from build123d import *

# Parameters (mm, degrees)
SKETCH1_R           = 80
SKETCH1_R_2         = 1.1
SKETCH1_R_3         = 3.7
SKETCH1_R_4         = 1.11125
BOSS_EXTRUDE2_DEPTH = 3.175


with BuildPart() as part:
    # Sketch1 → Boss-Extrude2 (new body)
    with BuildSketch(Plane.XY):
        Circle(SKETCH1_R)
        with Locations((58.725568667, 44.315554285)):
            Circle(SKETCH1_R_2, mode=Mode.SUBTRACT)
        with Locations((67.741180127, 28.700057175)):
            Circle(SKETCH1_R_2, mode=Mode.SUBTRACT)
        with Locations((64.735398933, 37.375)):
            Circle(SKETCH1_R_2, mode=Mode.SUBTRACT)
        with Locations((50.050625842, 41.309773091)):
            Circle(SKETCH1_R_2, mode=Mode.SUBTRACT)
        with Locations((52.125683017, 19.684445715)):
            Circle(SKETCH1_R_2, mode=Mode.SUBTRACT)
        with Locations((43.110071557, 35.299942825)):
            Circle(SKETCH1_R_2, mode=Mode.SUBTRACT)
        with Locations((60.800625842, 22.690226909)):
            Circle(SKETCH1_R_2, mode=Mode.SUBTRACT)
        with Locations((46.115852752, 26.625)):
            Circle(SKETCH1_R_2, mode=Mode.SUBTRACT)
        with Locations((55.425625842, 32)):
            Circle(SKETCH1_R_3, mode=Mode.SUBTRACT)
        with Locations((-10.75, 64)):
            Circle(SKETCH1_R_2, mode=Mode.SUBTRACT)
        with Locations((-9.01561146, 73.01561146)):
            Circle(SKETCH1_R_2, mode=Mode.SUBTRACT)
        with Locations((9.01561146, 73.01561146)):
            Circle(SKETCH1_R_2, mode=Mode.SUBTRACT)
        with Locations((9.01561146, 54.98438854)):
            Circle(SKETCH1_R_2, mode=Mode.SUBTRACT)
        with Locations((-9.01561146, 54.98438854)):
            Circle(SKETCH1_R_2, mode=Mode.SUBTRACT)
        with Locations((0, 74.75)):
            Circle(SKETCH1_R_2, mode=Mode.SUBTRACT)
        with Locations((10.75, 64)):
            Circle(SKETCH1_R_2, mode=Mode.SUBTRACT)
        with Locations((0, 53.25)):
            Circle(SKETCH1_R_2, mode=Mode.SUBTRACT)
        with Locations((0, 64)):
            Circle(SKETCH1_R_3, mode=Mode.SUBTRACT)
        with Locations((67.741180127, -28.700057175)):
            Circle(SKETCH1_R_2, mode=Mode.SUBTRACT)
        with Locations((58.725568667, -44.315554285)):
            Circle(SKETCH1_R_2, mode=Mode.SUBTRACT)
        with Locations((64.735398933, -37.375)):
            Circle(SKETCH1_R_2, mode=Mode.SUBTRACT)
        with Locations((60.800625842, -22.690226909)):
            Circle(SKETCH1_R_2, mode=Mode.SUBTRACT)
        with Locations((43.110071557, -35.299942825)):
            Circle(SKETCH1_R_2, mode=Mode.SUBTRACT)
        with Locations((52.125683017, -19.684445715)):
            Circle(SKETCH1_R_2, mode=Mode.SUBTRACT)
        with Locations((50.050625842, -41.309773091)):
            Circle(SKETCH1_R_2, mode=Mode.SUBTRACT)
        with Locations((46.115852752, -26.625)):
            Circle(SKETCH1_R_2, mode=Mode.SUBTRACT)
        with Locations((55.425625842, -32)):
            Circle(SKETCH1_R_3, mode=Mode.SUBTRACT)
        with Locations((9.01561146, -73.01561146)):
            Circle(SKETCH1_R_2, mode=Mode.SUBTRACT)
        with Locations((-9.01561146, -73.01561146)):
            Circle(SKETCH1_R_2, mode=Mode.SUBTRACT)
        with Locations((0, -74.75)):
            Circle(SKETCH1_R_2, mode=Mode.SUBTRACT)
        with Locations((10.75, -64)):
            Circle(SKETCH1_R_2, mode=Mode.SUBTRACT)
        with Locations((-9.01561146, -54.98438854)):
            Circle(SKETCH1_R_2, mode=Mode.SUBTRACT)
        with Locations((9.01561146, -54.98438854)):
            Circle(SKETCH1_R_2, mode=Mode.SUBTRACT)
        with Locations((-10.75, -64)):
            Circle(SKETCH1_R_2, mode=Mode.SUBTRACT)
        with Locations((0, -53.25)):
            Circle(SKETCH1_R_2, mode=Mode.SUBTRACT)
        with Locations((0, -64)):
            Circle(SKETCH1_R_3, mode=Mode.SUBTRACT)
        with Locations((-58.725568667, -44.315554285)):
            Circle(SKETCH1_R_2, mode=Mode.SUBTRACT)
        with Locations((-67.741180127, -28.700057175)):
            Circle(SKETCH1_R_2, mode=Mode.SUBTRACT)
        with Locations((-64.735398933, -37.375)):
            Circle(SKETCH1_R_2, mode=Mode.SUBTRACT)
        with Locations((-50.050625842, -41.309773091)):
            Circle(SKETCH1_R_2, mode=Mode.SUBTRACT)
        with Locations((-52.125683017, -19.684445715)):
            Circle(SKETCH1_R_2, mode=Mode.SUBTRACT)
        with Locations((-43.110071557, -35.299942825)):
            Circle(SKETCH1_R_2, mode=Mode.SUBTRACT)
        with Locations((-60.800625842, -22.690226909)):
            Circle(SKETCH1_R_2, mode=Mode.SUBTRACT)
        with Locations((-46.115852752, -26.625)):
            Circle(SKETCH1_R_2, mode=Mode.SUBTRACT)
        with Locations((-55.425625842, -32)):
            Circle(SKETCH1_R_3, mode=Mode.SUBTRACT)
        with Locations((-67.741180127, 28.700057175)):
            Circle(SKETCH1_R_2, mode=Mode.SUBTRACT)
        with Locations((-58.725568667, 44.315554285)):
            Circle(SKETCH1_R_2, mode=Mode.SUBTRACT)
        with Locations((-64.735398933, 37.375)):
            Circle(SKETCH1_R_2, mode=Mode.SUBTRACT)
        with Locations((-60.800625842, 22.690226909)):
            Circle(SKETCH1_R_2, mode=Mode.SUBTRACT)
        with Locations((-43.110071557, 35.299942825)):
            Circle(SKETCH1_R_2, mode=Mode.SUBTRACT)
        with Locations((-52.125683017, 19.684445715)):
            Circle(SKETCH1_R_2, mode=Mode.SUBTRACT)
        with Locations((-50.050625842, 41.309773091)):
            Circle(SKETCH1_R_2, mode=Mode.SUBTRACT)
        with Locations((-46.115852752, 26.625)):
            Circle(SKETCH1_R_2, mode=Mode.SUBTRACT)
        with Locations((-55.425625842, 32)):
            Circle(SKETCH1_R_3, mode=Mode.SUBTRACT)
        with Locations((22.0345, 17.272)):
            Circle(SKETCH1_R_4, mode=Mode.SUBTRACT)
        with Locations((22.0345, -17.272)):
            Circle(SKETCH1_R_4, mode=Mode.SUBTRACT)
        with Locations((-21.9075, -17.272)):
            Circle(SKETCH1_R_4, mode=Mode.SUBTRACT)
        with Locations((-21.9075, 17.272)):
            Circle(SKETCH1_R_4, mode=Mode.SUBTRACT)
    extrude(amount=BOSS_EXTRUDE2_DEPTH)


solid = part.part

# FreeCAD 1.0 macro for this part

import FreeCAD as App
import Part
import Sketcher
from FreeCAD import Vector

doc = App.newDocument("Part")
body = doc.addObject("PartDesign::Body", "Body")

# Sketch on XY plane
sketch1 = body.newObject("Sketcher::SketchObject", "Sketch")
sketch1.AttachmentSupport = (doc.getObject("XY_Plane"), [""])
sketch1.MapMode = "FlatFace"
sketch1.addGeometry(Part.Circle(Vector(0, 0, 0), Vector(0, 0, 1), 80), False)
sketch1.addGeometry(Part.Circle(Vector(-58.7, -44.3, 0), Vector(0, 0, 1), 1.1), False)
sketch1.addGeometry(Part.Circle(Vector(-50.1, -41.3, 0), Vector(0, 0, 1), 1.1), False)
sketch1.addGeometry(Part.Circle(Vector(-9, -73, 0), Vector(0, 0, 1), 1.1), False)
sketch1.addGeometry(Part.Circle(Vector(-10.8, -64, 0), Vector(0, 0, 1), 1.1), False)
sketch1.addGeometry(Part.Circle(Vector(-9, -55, 0), Vector(0, 0, 1), 1.1), False)
sketch1.addGeometry(Part.Circle(Vector(-64.7, -37.4, 0), Vector(0, 0, 1), 1.1), False)
sketch1.addGeometry(Part.Circle(Vector(-67.7, -28.7, 0), Vector(0, 0, 1), 1.1), False)
sketch1.addGeometry(Part.Circle(Vector(-55.4, -32, 0), Vector(0, 0, 1), 3.7), False)
sketch1.addGeometry(Part.Circle(Vector(-60.8, -22.7, 0), Vector(0, 0, 1), 1.1), False)
sketch1.addGeometry(Part.Circle(Vector(-52.1, -19.7, 0), Vector(0, 0, 1), 1.1), False)
sketch1.addGeometry(Part.Circle(Vector(-43.1, -35.3, 0), Vector(0, 0, 1), 1.1), False)
sketch1.addGeometry(Part.Circle(Vector(-46.1, -26.6, 0), Vector(0, 0, 1), 1.1), False)
sketch1.addGeometry(Part.Circle(Vector(-21.9, -17.3, 0), Vector(0, 0, 1), 1.1), False)
sketch1.addGeometry(Part.Circle(Vector(0, -74.8, 0), Vector(0, 0, 1), 1.1), False)
sketch1.addGeometry(Part.Circle(Vector(9, -73, 0), Vector(0, 0, 1), 1.1), False)
sketch1.addGeometry(Part.Circle(Vector(0, -64, 0), Vector(0, 0, 1), 3.7), False)
sketch1.addGeometry(Part.Circle(Vector(10.8, -64, 0), Vector(0, 0, 1), 1.1), False)
sketch1.addGeometry(Part.Circle(Vector(0, -53.2, 0), Vector(0, 0, 1), 1.1), False)
sketch1.addGeometry(Part.Circle(Vector(9, -55, 0), Vector(0, 0, 1), 1.1), False)
sketch1.addGeometry(Part.Circle(Vector(50.1, -41.3, 0), Vector(0, 0, 1), 1.1), False)
sketch1.addGeometry(Part.Circle(Vector(58.7, -44.3, 0), Vector(0, 0, 1), 1.1), False)
sketch1.addGeometry(Part.Circle(Vector(22, -17.3, 0), Vector(0, 0, 1), 1.1), False)
sketch1.addGeometry(Part.Circle(Vector(43.1, -35.3, 0), Vector(0, 0, 1), 1.1), False)
sketch1.addGeometry(Part.Circle(Vector(46.1, -26.6, 0), Vector(0, 0, 1), 1.1), False)
sketch1.addGeometry(Part.Circle(Vector(55.4, -32, 0), Vector(0, 0, 1), 3.7), False)
sketch1.addGeometry(Part.Circle(Vector(64.7, -37.4, 0), Vector(0, 0, 1), 1.1), False)
sketch1.addGeometry(Part.Circle(Vector(67.7, -28.7, 0), Vector(0, 0, 1), 1.1), False)
sketch1.addGeometry(Part.Circle(Vector(52.1, -19.7, 0), Vector(0, 0, 1), 1.1), False)
sketch1.addGeometry(Part.Circle(Vector(60.8, -22.7, 0), Vector(0, 0, 1), 1.1), False)
sketch1.addGeometry(Part.Circle(Vector(-60.8, 22.7, 0), Vector(0, 0, 1), 1.1), False)
sketch1.addGeometry(Part.Circle(Vector(-52.1, 19.7, 0), Vector(0, 0, 1), 1.1), False)
sketch1.addGeometry(Part.Circle(Vector(-67.7, 28.7, 0), Vector(0, 0, 1), 1.1), False)
sketch1.addGeometry(Part.Circle(Vector(-64.7, 37.4, 0), Vector(0, 0, 1), 1.1), False)
sketch1.addGeometry(Part.Circle(Vector(-55.4, 32, 0), Vector(0, 0, 1), 3.7), False)
sketch1.addGeometry(Part.Circle(Vector(-46.1, 26.6, 0), Vector(0, 0, 1), 1.1), False)
sketch1.addGeometry(Part.Circle(Vector(-43.1, 35.3, 0), Vector(0, 0, 1), 1.1), False)
sketch1.addGeometry(Part.Circle(Vector(-21.9, 17.3, 0), Vector(0, 0, 1), 1.1), False)
sketch1.addGeometry(Part.Circle(Vector(-58.7, 44.3, 0), Vector(0, 0, 1), 1.1), False)
sketch1.addGeometry(Part.Circle(Vector(-50.1, 41.3, 0), Vector(0, 0, 1), 1.1), False)
sketch1.addGeometry(Part.Circle(Vector(-9, 55, 0), Vector(0, 0, 1), 1.1), False)
sketch1.addGeometry(Part.Circle(Vector(-10.8, 64, 0), Vector(0, 0, 1), 1.1), False)
sketch1.addGeometry(Part.Circle(Vector(-9, 73, 0), Vector(0, 0, 1), 1.1), False)
sketch1.addGeometry(Part.Circle(Vector(22, 17.3, 0), Vector(0, 0, 1), 1.1), False)
sketch1.addGeometry(Part.Circle(Vector(46.1, 26.6, 0), Vector(0, 0, 1), 1.1), False)
sketch1.addGeometry(Part.Circle(Vector(43.1, 35.3, 0), Vector(0, 0, 1), 1.1), False)
sketch1.addGeometry(Part.Circle(Vector(52.1, 19.7, 0), Vector(0, 0, 1), 1.1), False)
sketch1.addGeometry(Part.Circle(Vector(60.8, 22.7, 0), Vector(0, 0, 1), 1.1), False)
sketch1.addGeometry(Part.Circle(Vector(55.4, 32, 0), Vector(0, 0, 1), 3.7), False)
sketch1.addGeometry(Part.Circle(Vector(67.7, 28.7, 0), Vector(0, 0, 1), 1.1), False)
sketch1.addGeometry(Part.Circle(Vector(64.7, 37.4, 0), Vector(0, 0, 1), 1.1), False)
sketch1.addGeometry(Part.Circle(Vector(0, 53.2, 0), Vector(0, 0, 1), 1.1), False)
sketch1.addGeometry(Part.Circle(Vector(9, 55, 0), Vector(0, 0, 1), 1.1), False)
sketch1.addGeometry(Part.Circle(Vector(0, 64, 0), Vector(0, 0, 1), 3.7), False)
sketch1.addGeometry(Part.Circle(Vector(10.8, 64, 0), Vector(0, 0, 1), 1.1), False)
sketch1.addGeometry(Part.Circle(Vector(0, 74.8, 0), Vector(0, 0, 1), 1.1), False)
sketch1.addGeometry(Part.Circle(Vector(9, 73, 0), Vector(0, 0, 1), 1.1), False)
sketch1.addGeometry(Part.Circle(Vector(50.1, 41.3, 0), Vector(0, 0, 1), 1.1), False)
sketch1.addGeometry(Part.Circle(Vector(58.7, 44.3, 0), Vector(0, 0, 1), 1.1), False)
sketch1.addConstraint(Sketcher.Constraint("Coincident", 0, 3, -1, 1))
sketch1.addConstraint(Sketcher.Constraint("Equal", 1, 2))
sketch1.addConstraint(Sketcher.Constraint("Equal", 2, 3))
sketch1.addConstraint(Sketcher.Constraint("Equal", 3, 4))
sketch1.addConstraint(Sketcher.Constraint("Equal", 4, 5))
sketch1.addConstraint(Sketcher.Constraint("Equal", 5, 6))
sketch1.addConstraint(Sketcher.Constraint("Equal", 6, 7))
sketch1.addConstraint(Sketcher.Constraint("Equal", 7, 9))
sketch1.addConstraint(Sketcher.Constraint("Equal", 9, 10))
sketch1.addConstraint(Sketcher.Constraint("Equal", 10, 11))
sketch1.addConstraint(Sketcher.Constraint("Equal", 11, 12))
sketch1.addConstraint(Sketcher.Constraint("Equal", 12, 14))
sketch1.addConstraint(Sketcher.Constraint("Equal", 14, 15))
sketch1.addConstraint(Sketcher.Constraint("Equal", 8, 16))
sketch1.addConstraint(Sketcher.Constraint("Equal", 15, 17))
sketch1.addConstraint(Sketcher.Constraint("Equal", 17, 18))
sketch1.addConstraint(Sketcher.Constraint("Equal", 18, 19))
sketch1.addConstraint(Sketcher.Constraint("Equal", 19, 20))
sketch1.addConstraint(Sketcher.Constraint("Equal", 20, 21))
sketch1.addConstraint(Sketcher.Constraint("Equal", 13, 22))
sketch1.addConstraint(Sketcher.Constraint("Equal", 21, 23))
sketch1.addConstraint(Sketcher.Constraint("Equal", 23, 24))
sketch1.addConstraint(Sketcher.Constraint("Equal", 16, 25))
sketch1.addConstraint(Sketcher.Constraint("Equal", 24, 26))
sketch1.addConstraint(Sketcher.Constraint("Equal", 26, 27))
sketch1.addConstraint(Sketcher.Constraint("Equal", 27, 28))
sketch1.addConstraint(Sketcher.Constraint("Equal", 28, 29))
sketch1.addConstraint(Sketcher.Constraint("Equal", 29, 30))
sketch1.addConstraint(Sketcher.Constraint("Equal", 30, 31))
sketch1.addConstraint(Sketcher.Constraint("Equal", 31, 32))
sketch1.addConstraint(Sketcher.Constraint("Equal", 32, 33))
sketch1.addConstraint(Sketcher.Constraint("Equal", 25, 34))
sketch1.addConstraint(Sketcher.Constraint("Equal", 33, 35))
sketch1.addConstraint(Sketcher.Constraint("Equal", 35, 36))
sketch1.addConstraint(Sketcher.Constraint("Equal", 22, 37))
sketch1.addConstraint(Sketcher.Constraint("Equal", 36, 38))
sketch1.addConstraint(Sketcher.Constraint("Equal", 38, 39))
sketch1.addConstraint(Sketcher.Constraint("Equal", 39, 40))
sketch1.addConstraint(Sketcher.Constraint("Equal", 40, 41))
sketch1.addConstraint(Sketcher.Constraint("Equal", 41, 42))
sketch1.addConstraint(Sketcher.Constraint("Equal", 37, 43))
sketch1.addConstraint(Sketcher.Constraint("Equal", 42, 44))
sketch1.addConstraint(Sketcher.Constraint("Equal", 44, 45))
sketch1.addConstraint(Sketcher.Constraint("Equal", 45, 46))
sketch1.addConstraint(Sketcher.Constraint("Equal", 46, 47))
sketch1.addConstraint(Sketcher.Constraint("Equal", 34, 48))
sketch1.addConstraint(Sketcher.Constraint("Equal", 47, 49))
sketch1.addConstraint(Sketcher.Constraint("Equal", 49, 50))
sketch1.addConstraint(Sketcher.Constraint("Equal", 50, 51))
sketch1.addConstraint(Sketcher.Constraint("Equal", 51, 52))
sketch1.addConstraint(Sketcher.Constraint("Equal", 48, 53))
sketch1.addConstraint(Sketcher.Constraint("Equal", 52, 54))
sketch1.addConstraint(Sketcher.Constraint("Equal", 54, 55))
sketch1.addConstraint(Sketcher.Constraint("Equal", 55, 56))
sketch1.addConstraint(Sketcher.Constraint("Equal", 56, 57))
sketch1.addConstraint(Sketcher.Constraint("Equal", 57, 58))
sketch1.addConstraint(Sketcher.Constraint("Symmetric", 29, 3, 30, 3, -1, 1))
sketch1.addConstraint(Sketcher.Constraint("Symmetric", 28, 3, 31, 3, -1, 1))
sketch1.addConstraint(Sketcher.Constraint("Symmetric", 27, 3, 32, 3, -1, 1))
sketch1.addConstraint(Sketcher.Constraint("Symmetric", 26, 3, 33, 3, -1, 1))
sketch1.addConstraint(Sketcher.Constraint("Symmetric", 25, 3, 34, 3, -1, 1))
sketch1.addConstraint(Sketcher.Constraint("Symmetric", 24, 3, 35, 3, -1, 1))
sketch1.addConstraint(Sketcher.Constraint("Symmetric", 23, 3, 36, 3, -1, 1))
sketch1.addConstraint(Sketcher.Constraint("Symmetric", 21, 3, 38, 3, -1, 1))
sketch1.addConstraint(Sketcher.Constraint("Symmetric", 20, 3, 39, 3, -1, 1))
sketch1.addConstraint(Sketcher.Constraint("Symmetric", 19, 3, 40, 3, -1, 1))
sketch1.addConstraint(Sketcher.Constraint("Symmetric", 17, 3, 41, 3, -1, 1))
sketch1.addConstraint(Sketcher.Constraint("Symmetric", 15, 3, 42, 3, -1, 1))
sketch1.addConstraint(Sketcher.Constraint("Symmetric", 12, 3, 44, 3, -1, 1))
sketch1.addConstraint(Sketcher.Constraint("Symmetric", 11, 3, 45, 3, -1, 1))
sketch1.addConstraint(Sketcher.Constraint("Symmetric", 10, 3, 46, 3, -1, 1))
sketch1.addConstraint(Sketcher.Constraint("Symmetric", 9, 3, 47, 3, -1, 1))
sketch1.addConstraint(Sketcher.Constraint("Symmetric", 8, 3, 48, 3, -1, 1))
sketch1.addConstraint(Sketcher.Constraint("Symmetric", 7, 3, 49, 3, -1, 1))
sketch1.addConstraint(Sketcher.Constraint("Symmetric", 6, 3, 50, 3, -1, 1))
sketch1.addConstraint(Sketcher.Constraint("Symmetric", 18, 3, 51, 3, -1, 1))
sketch1.addConstraint(Sketcher.Constraint("Symmetric", 5, 3, 52, 3, -1, 1))
sketch1.addConstraint(Sketcher.Constraint("Symmetric", 16, 3, 53, 3, -1, 1))
sketch1.addConstraint(Sketcher.Constraint("Symmetric", 4, 3, 54, 3, -1, 1))
sketch1.addConstraint(Sketcher.Constraint("Symmetric", 14, 3, 55, 3, -1, 1))
sketch1.addConstraint(Sketcher.Constraint("Symmetric", 3, 3, 56, 3, -1, 1))
sketch1.addConstraint(Sketcher.Constraint("Symmetric", 2, 3, 57, 3, -1, 1))
sketch1.addConstraint(Sketcher.Constraint("Symmetric", 1, 3, 58, 3, -1, 1))
sketch1.addConstraint(Sketcher.Constraint("Symmetric", 3, 3, 15, 3, -2))
sketch1.addConstraint(Sketcher.Constraint("Symmetric", 4, 3, 17, 3, -2))
sketch1.addConstraint(Sketcher.Constraint("Symmetric", 5, 3, 19, 3, -2))
sketch1.addConstraint(Sketcher.Constraint("Symmetric", 2, 3, 20, 3, -2))
sketch1.addConstraint(Sketcher.Constraint("Symmetric", 1, 3, 21, 3, -2))
sketch1.addConstraint(Sketcher.Constraint("Symmetric", 11, 3, 23, 3, -2))
sketch1.addConstraint(Sketcher.Constraint("Symmetric", 12, 3, 24, 3, -2))
sketch1.addConstraint(Sketcher.Constraint("Symmetric", 8, 3, 25, 3, -2))
sketch1.addConstraint(Sketcher.Constraint("Symmetric", 6, 3, 26, 3, -2))
sketch1.addConstraint(Sketcher.Constraint("Symmetric", 7, 3, 27, 3, -2))
sketch1.addConstraint(Sketcher.Constraint("Symmetric", 10, 3, 28, 3, -2))
sketch1.addConstraint(Sketcher.Constraint("Symmetric", 9, 3, 29, 3, -2))
sketch1.addConstraint(Sketcher.Constraint("Symmetric", 13, 3, 37, 3, -1))
sketch1.addConstraint(Sketcher.Constraint("Symmetric", 22, 3, 43, 3, -1))
sketch1.addConstraint(Sketcher.Constraint("PointOnObject", 14, 3, -2))
sketch1.addConstraint(Sketcher.Constraint("PointOnObject", 16, 3, -2))
sketch1.addConstraint(Sketcher.Constraint("PointOnObject", 18, 3, -2))
sketch1.addConstraint(Sketcher.Constraint("Horizontal", 4, 3, 16, 3))
sketch1.addConstraint(Sketcher.Constraint("Horizontal", 13, 3, 22, 3))
sketch1.addConstraint(Sketcher.Constraint("Vertical", 3, 3, 5, 3))
sketch1.addConstraint(Sketcher.Constraint("Diameter", 0, 160.0))
sketch1.addConstraint(Sketcher.Constraint("Diameter", 1, 2.2))
sketch1.addConstraint(Sketcher.Constraint("Diameter", 8, 7.4))
sketch1.addConstraint(Sketcher.Constraint("DistanceY", 4, 3, -1, 1, 64.0))
sketch1.addConstraint(Sketcher.Constraint("DistanceY", 8, 3, -1, 1, 32.0))
sketch1.addConstraint(Sketcher.Constraint("Diameter", 13, 2.2225))
sketch1.addConstraint(Sketcher.Constraint("DistanceX", 4, 3, 17, 3, 21.5))
sketch1.addConstraint(Sketcher.Constraint("DistanceY", 14, 3, 18, 3, 21.5))
sketch1.addConstraint(Sketcher.Constraint("DistanceY", 14, 3, -1, 1, 74.75))
sketch1.addConstraint(Sketcher.Constraint("DistanceX", 9, 3, 2, 3, 10.75))
sketch1.addConstraint(Sketcher.Constraint("DistanceY", 26, 3, 24, 3, 10.75))
sketch1.addConstraint(Sketcher.Constraint("DistanceY", 24, 3, 44, 3, 53.25))
sketch1.addConstraint(Sketcher.Constraint("DistanceY", 13, 3, -1, 1, 17.272))
sketch1.addConstraint(Sketcher.Constraint("DistanceX", 8, 3, 2, 3, 5.375))
sketch1.addConstraint(Sketcher.Constraint("DistanceX", 13, 3, 22, 3, 43.942))
sketch1.addConstraint(Sketcher.Constraint("DistanceX", 6, 3, -1, 1, 64.735399))
sketch1.addConstraint(Sketcher.Constraint("DistanceX", 13, 3, -1, 1, 21.9075))
sketch1.addConstraint(Sketcher.Constraint("DistanceX", 1, 3, -1, 1, 58.725569))
sketch1.addConstraint(Sketcher.Constraint("DistanceX", 3, 3, -1, 1, 9.015611))
sketch1.addConstraint(Sketcher.Constraint("DistanceY", 3, 3, -1, 1, 73.015611))
sketch1.addConstraint(Sketcher.Constraint("DistanceY", 5, 3, -1, 1, 54.984389))
sketch1.addConstraint(Sketcher.Constraint("DistanceX", 7, 3, -1, 1, 67.74118))
sketch1.addConstraint(Sketcher.Constraint("DistanceX", 11, 3, -1, 1, 43.110072))
sketch1.addConstraint(Sketcher.Constraint("DistanceY", 1, 3, 2, 3, 3.005781))
sketch1.addConstraint(Sketcher.Constraint("DistanceY", 3, 3, 2, 3, 31.705838))
sketch1.addConstraint(Sketcher.Constraint("DistanceY", 5, 3, 7, 3, 26.284331))
sketch1.addConstraint(Sketcher.Constraint("DistanceY", 7, 3, 9, 3, 6.00983))
sketch1.addConstraint(Sketcher.Constraint("DistanceY", 9, 3, 10, 3, 3.005781))
sketch1.addConstraint(Sketcher.Constraint("DistanceY", 2, 3, 11, 3, 6.00983))
sketch1.addConstraint(Sketcher.Constraint("DistanceX", 10, 3, 11, 3, 9.015611))
sketch1.addConstraint(Sketcher.Constraint("DistanceX", 10, 3, 12, 3, 6.00983))
sketch1.addConstraint(Sketcher.Constraint("DistanceX", 2, 3, -1, 1, 50.050626))
pad1 = body.newObject("PartDesign::Pad", "Pad")
pad1.Profile = sketch1
pad1.Length = 3.175

doc.recompute()
